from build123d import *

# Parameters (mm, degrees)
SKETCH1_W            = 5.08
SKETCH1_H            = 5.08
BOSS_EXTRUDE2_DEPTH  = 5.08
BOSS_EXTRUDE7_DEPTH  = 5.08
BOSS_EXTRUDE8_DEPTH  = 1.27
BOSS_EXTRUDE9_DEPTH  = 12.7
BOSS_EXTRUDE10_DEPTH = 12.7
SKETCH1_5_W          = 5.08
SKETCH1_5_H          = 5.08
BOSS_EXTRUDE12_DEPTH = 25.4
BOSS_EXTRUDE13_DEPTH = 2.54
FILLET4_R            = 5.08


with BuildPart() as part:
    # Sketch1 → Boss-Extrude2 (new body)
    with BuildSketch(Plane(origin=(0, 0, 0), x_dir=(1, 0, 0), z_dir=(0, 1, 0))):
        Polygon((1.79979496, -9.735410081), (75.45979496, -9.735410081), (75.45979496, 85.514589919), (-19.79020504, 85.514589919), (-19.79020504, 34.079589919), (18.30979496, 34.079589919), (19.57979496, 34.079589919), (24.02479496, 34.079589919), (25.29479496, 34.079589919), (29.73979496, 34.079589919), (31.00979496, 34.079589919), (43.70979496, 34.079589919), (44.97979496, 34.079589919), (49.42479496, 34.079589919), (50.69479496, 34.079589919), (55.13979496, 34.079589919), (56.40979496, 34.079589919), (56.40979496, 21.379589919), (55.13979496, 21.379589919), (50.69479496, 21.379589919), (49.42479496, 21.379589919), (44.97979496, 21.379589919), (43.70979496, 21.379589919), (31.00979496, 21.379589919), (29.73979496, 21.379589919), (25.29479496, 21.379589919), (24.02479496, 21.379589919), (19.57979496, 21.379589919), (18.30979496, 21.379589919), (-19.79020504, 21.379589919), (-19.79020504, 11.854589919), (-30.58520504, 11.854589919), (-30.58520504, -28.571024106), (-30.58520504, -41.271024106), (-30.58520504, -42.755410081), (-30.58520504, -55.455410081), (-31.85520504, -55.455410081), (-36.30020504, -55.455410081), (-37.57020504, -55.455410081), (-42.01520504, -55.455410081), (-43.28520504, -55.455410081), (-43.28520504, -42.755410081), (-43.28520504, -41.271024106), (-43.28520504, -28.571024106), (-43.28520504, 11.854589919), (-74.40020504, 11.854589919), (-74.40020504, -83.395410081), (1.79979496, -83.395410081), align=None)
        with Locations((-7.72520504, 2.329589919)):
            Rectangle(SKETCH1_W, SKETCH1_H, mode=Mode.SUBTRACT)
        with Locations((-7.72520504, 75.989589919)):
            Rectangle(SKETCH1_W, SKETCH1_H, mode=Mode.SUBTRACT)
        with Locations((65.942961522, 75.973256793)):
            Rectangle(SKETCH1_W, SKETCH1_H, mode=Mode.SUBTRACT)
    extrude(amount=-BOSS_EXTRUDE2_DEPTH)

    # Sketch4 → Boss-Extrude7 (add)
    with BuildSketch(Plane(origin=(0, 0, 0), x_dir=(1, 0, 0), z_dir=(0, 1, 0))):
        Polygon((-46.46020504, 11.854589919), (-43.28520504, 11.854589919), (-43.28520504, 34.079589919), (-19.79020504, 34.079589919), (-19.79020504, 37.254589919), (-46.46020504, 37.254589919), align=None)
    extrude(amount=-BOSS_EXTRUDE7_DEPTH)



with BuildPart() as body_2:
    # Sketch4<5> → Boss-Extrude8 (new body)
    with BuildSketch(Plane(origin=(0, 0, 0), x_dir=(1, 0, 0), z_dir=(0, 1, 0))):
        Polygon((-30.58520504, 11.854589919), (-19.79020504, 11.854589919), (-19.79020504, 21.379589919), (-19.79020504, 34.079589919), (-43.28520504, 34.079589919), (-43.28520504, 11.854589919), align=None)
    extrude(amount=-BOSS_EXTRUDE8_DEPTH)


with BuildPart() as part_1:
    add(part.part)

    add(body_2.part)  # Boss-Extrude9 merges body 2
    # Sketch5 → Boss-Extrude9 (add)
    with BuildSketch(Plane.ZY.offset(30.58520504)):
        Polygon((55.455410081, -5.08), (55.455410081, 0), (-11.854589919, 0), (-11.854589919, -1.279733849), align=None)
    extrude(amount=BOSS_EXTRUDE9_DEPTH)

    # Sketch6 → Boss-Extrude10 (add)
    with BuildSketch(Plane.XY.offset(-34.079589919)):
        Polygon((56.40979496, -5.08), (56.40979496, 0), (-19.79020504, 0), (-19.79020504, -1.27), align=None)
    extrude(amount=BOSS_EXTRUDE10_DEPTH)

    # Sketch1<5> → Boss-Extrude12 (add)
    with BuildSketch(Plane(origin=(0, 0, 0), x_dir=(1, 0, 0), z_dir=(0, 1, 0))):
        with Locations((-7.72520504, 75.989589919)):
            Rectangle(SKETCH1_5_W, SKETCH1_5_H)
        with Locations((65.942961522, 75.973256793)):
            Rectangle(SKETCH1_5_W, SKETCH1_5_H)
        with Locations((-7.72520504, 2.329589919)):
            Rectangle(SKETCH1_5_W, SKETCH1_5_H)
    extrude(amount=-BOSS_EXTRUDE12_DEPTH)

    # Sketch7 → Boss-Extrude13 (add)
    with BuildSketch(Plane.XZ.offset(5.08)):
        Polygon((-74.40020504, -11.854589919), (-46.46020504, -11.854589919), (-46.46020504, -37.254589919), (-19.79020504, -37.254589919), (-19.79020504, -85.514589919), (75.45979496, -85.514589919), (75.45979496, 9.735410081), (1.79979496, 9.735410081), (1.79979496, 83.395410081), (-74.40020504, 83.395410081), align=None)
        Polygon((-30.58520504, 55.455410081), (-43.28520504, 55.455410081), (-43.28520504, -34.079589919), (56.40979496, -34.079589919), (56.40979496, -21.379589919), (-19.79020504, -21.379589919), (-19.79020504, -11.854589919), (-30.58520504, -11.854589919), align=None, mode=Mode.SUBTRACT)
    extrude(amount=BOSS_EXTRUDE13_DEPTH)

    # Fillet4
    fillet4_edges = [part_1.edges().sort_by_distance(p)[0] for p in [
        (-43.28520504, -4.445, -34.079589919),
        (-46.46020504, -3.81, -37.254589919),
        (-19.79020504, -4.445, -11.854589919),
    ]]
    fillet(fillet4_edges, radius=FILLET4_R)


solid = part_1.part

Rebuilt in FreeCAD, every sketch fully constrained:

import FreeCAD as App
import Part
import Sketcher

V = App.Vector
Q = App.Units.Quantity


def edges_at(feature, points):
    """Names of the edges that pass closest to the given points."""
    edges = feature.Shape.Edges
    near = lambda p: min(range(len(edges)), key=lambda i: edges[i].distToShape(Part.Vertex(*p))[0])
    return sorted({f"Edge{near(p) + 1}" for p in points})

doc = App.newDocument("Part")
body = doc.addObject("PartDesign::Body", "Body")

sketch1 = body.newObject("Sketcher::SketchObject", "Sketch")
sketch1.AttachmentSupport = (doc.getObject("XZ_Plane"), [""])
sketch1.MapMode = "FlatFace"
sketch1.addGeometry([
    Part.LineSegment(V(1.799795, 9.73541, 0), V(75.459795, 9.73541, 0)),
    Part.LineSegment(V(75.459795, 9.73541, 0), V(75.459795, -85.51459, 0)),
    Part.LineSegment(V(75.459795, -85.51459, 0), V(-19.790205, -85.51459, 0)),
    Part.LineSegment(V(-19.790205, -85.51459, 0), V(-19.790205, -34.07959, 0)),
    Part.LineSegment(V(-19.790205, -34.07959, 0), V(56.409795, -34.07959, 0)),
    Part.LineSegment(V(56.409795, -34.07959, 0), V(56.409795, -21.37959, 0)),
    Part.LineSegment(V(56.409795, -21.37959, 0), V(-19.790205, -21.37959, 0)),
    Part.LineSegment(V(-19.790205, -21.37959, 0), V(-19.790205, -11.85459, 0)),
    Part.LineSegment(V(-19.790205, -11.85459, 0), V(-30.585205, -11.85459, 0)),
    Part.LineSegment(V(-30.585205, -11.85459, 0), V(-30.585205, 55.45541, 0)),
    Part.LineSegment(V(-30.585205, 55.45541, 0), V(-43.285205, 55.45541, 0)),
    Part.LineSegment(V(-43.285205, 55.45541, 0), V(-43.285205, -11.85459, 0)),
    Part.LineSegment(V(-43.285205, -11.85459, 0), V(-74.400205, -11.85459, 0)),
    Part.LineSegment(V(-74.400205, -11.85459, 0), V(-74.400205, 83.39541, 0)),
    Part.LineSegment(V(-74.400205, 83.39541, 0), V(1.799795, 83.39541, 0)),
    Part.LineSegment(V(1.799795, 83.39541, 0), V(1.799795, 9.73541, 0)),
    Part.LineSegment(V(-5.185205, 0.21041, 0), V(-10.265205, 0.21041, 0)),
    Part.LineSegment(V(-10.265205, 0.21041, 0), V(-10.265205, -4.86959, 0)),
    Part.LineSegment(V(-10.265205, -4.86959, 0), V(-5.185205, -4.86959, 0)),
    Part.LineSegment(V(-5.185205, -4.86959, 0), V(-5.185205, 0.21041, 0)),
    Part.LineSegment(V(-5.185205, -73.44959, 0), V(-10.265205, -73.44959, 0)),
    Part.LineSegment(V(-10.265205, -73.44959, 0), V(-10.265205, -78.52959, 0)),
    Part.LineSegment(V(-10.265205, -78.52959, 0), V(-5.185205, -78.52959, 0)),
    Part.LineSegment(V(-5.185205, -78.52959, 0), V(-5.185205, -73.44959, 0)),
    Part.LineSegment(V(68.482962, -73.433257, 0), V(63.402962, -73.433257, 0)),
    Part.LineSegment(V(63.402962, -73.433257, 0), V(63.402962, -78.513257, 0)),
    Part.LineSegment(V(63.402962, -78.513257, 0), V(68.482962, -78.513257, 0)),
    Part.LineSegment(V(68.482962, -78.513257, 0), V(68.482962, -73.433257, 0)),
], False)
sketch1.addConstraint([
    Sketcher.Constraint("Coincident", 0, 2, 1, 1),
    Sketcher.Constraint("Coincident", 1, 2, 2, 1),
    Sketcher.Constraint("Coincident", 2, 2, 3, 1),
    Sketcher.Constraint("Coincident", 3, 2, 4, 1),
    Sketcher.Constraint("Coincident", 4, 2, 5, 1),
    Sketcher.Constraint("Coincident", 5, 2, 6, 1),
    Sketcher.Constraint("Coincident", 6, 2, 7, 1),
    Sketcher.Constraint("Coincident", 7, 2, 8, 1),
    Sketcher.Constraint("Coincident", 8, 2, 9, 1),
    Sketcher.Constraint("Coincident", 9, 2, 10, 1),
    Sketcher.Constraint("Coincident", 10, 2, 11, 1),
    Sketcher.Constraint("Coincident", 11, 2, 12, 1),
    Sketcher.Constraint("Coincident", 12, 2, 13, 1),
    Sketcher.Constraint("Coincident", 13, 2, 14, 1),
    Sketcher.Constraint("Coincident", 14, 2, 15, 1),
    Sketcher.Constraint("Coincident", 15, 2, 0, 1),
    Sketcher.Constraint("Coincident", 16, 2, 17, 1),
    Sketcher.Constraint("Coincident", 17, 2, 18, 1),
    Sketcher.Constraint("Coincident", 18, 2, 19, 1),
    Sketcher.Constraint("Coincident", 19, 2, 16, 1),
    Sketcher.Constraint("Coincident", 20, 2, 21, 1),
    Sketcher.Constraint("Coincident", 21, 2, 22, 1),
    Sketcher.Constraint("Coincident", 22, 2, 23, 1),
    Sketcher.Constraint("Coincident", 23, 2, 20, 1),
    Sketcher.Constraint("Coincident", 24, 2, 25, 1),
    Sketcher.Constraint("Coincident", 25, 2, 26, 1),
    Sketcher.Constraint("Coincident", 26, 2, 27, 1),
    Sketcher.Constraint("Coincident", 27, 2, 24, 1),
    Sketcher.Constraint("Horizontal", 0),
    Sketcher.Constraint("Vertical", 1),
    Sketcher.Constraint("Horizontal", 2),
    Sketcher.Constraint("Vertical", 3),
    Sketcher.Constraint("Horizontal", 4),
    Sketcher.Constraint("Vertical", 5),
    Sketcher.Constraint("Horizontal", 6),
    Sketcher.Constraint("Vertical", 7),
    Sketcher.Constraint("Horizontal", 8),
    Sketcher.Constraint("Vertical", 9),
    Sketcher.Constraint("Horizontal", 10),
    Sketcher.Constraint("Vertical", 11),
    Sketcher.Constraint("Horizontal", 12),
    Sketcher.Constraint("Vertical", 13),
    Sketcher.Constraint("Horizontal", 14),
    Sketcher.Constraint("Vertical", 15),
    Sketcher.Constraint("Horizontal", 16),
    Sketcher.Constraint("Vertical", 17),
    Sketcher.Constraint("Horizontal", 18),
    Sketcher.Constraint("Vertical", 19),
    Sketcher.Constraint("Horizontal", 20),
    Sketcher.Constraint("Vertical", 21),
    Sketcher.Constraint("Horizontal", 22),
    Sketcher.Constraint("Vertical", 23),
    Sketcher.Constraint("Horizontal", 24),
    Sketcher.Constraint("Vertical", 25),
    Sketcher.Constraint("Horizontal", 26),
    Sketcher.Constraint("Vertical", 27),
    Sketcher.Constraint("Horizontal", 8, 2, 11, 2),
    Sketcher.Constraint("Vertical", 3, 2, 6, 2),
    Sketcher.Constraint("Vertical", 17, 2, 20, 2),
    Sketcher.Constraint("Vertical", 19, 2, 22, 2),
    Sketcher.Constraint("Equal", 6, 14),
    Sketcher.Constraint("Equal", 22, 24),
    Sketcher.Constraint("Equal", 2, 1),
    Sketcher.Constraint("Equal", 10, 5),
    Sketcher.Constraint("Equal", 1, 13),
    Sketcher.Constraint("Equal", 0, 15),
    Sketcher.Constraint("Equal", 26, 17),
    Sketcher.Constraint("Equal", 19, 21),
    Sketcher.Constraint("Equal", 23, 25),
    Sketcher.Constraint("DistanceX", 4, 1, 4, 2, Q("3 in")),
    Sketcher.Constraint("DistanceX", 0, 1, 0, 2, Q("2.9 in")),
    Sketcher.Constraint("DistanceX", 10, 2, 10, 1, Q("0.5 in")),
    Sketcher.Constraint("DistanceX", 16, 2, 16, 1, Q("0.2 in")),
    Sketcher.Constraint("DistanceX", 2, 2, 2, 1, Q("3.75 in")),
    Sketcher.Constraint("DistanceY", 9, 1, 9, 2, Q("2.65 in")),
    Sketcher.Constraint("DistanceX", 8, 2, 16, 2, Q("0.8 in")),
    Sketcher.Constraint("DistanceX", 8, 2, 8, 1, Q("0.425 in")),
    Sketcher.Constraint("DistanceY", 3, 1, 3, 2, Q("2.025 in")),
    Sketcher.Constraint("DistanceY", 6, 2, 16, 2, Q("0.85 in")),
    Sketcher.Constraint("DistanceY", 20, 2, 3, 2, Q("1.55 in")),
    Sketcher.Constraint("DistanceY", -1, 1, 0, 2, Q("9.73541 mm")),
    Sketcher.Constraint("DistanceX", -1, 1, 24, 2, Q("63.402962 mm")),
    Sketcher.Constraint("DistanceX", -1, 1, 0, 2, Q("75.459795 mm")),
    Sketcher.Constraint("DistanceY", 24, 2, -1, 1, Q("73.433257 mm")),
])
pad1 = body.newObject("PartDesign::Pad", "Pad")
pad1.Profile = sketch1
pad1.Length = Q("0.2 in")

sketch2 = body.newObject("Sketcher::SketchObject", "Sketch001")
sketch2.AttachmentSupport = (doc.getObject("XZ_Plane"), [""])
sketch2.MapMode = "FlatFace"
sketch2.addGeometry([
    Part.LineSegment(V(-46.460205, -11.85459, 0), V(-43.285205, -11.85459, 0)),
    Part.LineSegment(V(-43.285205, -11.85459, 0), V(-43.285205, -34.07959, 0)),
    Part.LineSegment(V(-43.285205, -34.07959, 0), V(-19.790205, -34.07959, 0)),
    Part.LineSegment(V(-19.790205, -34.07959, 0), V(-19.790205, -37.25459, 0)),
    Part.LineSegment(V(-19.790205, -37.25459, 0), V(-46.460205, -37.25459, 0)),
    Part.LineSegment(V(-46.460205, -37.25459, 0), V(-46.460205, -11.85459, 0)),
], False)
sketch2.addConstraint([
    Sketcher.Constraint("Coincident", 0, 2, 1, 1),
    Sketcher.Constraint("Coincident", 1, 2, 2, 1),
    Sketcher.Constraint("Coincident", 2, 2, 3, 1),
    Sketcher.Constraint("Coincident", 3, 2, 4, 1),
    Sketcher.Constraint("Coincident", 4, 2, 5, 1),
    Sketcher.Constraint("Coincident", 5, 2, 0, 1),
    Sketcher.Constraint("Horizontal", 0),
    Sketcher.Constraint("Vertical", 1),
    Sketcher.Constraint("Horizontal", 2),
    Sketcher.Constraint("Vertical", 3),
    Sketcher.Constraint("Horizontal", 4),
    Sketcher.Constraint("Vertical", 5),
    Sketcher.Constraint("Equal", 0, 3),
    Sketcher.Constraint("DistanceY", 5, 1, 5, 2, Q("1 in")),
    Sketcher.Constraint("DistanceX", 4, 2, 4, 1, Q("1.05 in")),
    Sketcher.Constraint("DistanceX", 0, 1, 0, 2, Q("0.125 in")),
    Sketcher.Constraint("DistanceY", 0, 2, -1, 1, Q("11.85459 mm")),
    Sketcher.Constraint("DistanceX", 0, 2, -1, 1, Q("43.285205 mm")),
])
pad2 = body.newObject("PartDesign::Pad", "Pad001")
pad2.Profile = sketch2
pad2.Length = Q("0.2 in")
body2 = doc.addObject("PartDesign::Body", "Body001")

sketch3 = body2.newObject("Sketcher::SketchObject", "Sketch002")
sketch3.AttachmentSupport = (doc.getObject("XZ_Plane001"), [""])
sketch3.MapMode = "FlatFace"
sketch3.addGeometry([
    Part.LineSegment(V(-19.790205, -11.85459, 0), V(-19.790205, -34.07959, 0)),
    Part.LineSegment(V(-19.790205, -34.07959, 0), V(-43.285205, -34.07959, 0)),
    Part.LineSegment(V(-43.285205, -34.07959, 0), V(-43.285205, -11.85459, 0)),
    Part.LineSegment(V(-43.285205, -11.85459, 0), V(-19.790205, -11.85459, 0)),
], False)
sketch3.addConstraint([
    Sketcher.Constraint("Coincident", 0, 2, 1, 1),
    Sketcher.Constraint("Coincident", 1, 2, 2, 1),
    Sketcher.Constraint("Coincident", 2, 2, 3, 1),
    Sketcher.Constraint("Coincident", 3, 2, 0, 1),
    Sketcher.Constraint("Vertical", 0),
    Sketcher.Constraint("Horizontal", 1),
    Sketcher.Constraint("Vertical", 2),
    Sketcher.Constraint("Horizontal", 3),
    Sketcher.Constraint("DistanceX", 1, 2, 1, 1, Q("0.925 in")),
    Sketcher.Constraint("DistanceY", 0, 2, 0, 1, Q("0.875 in")),
    Sketcher.Constraint("DistanceY", 0, 2, -1, 1, Q("34.07959 mm")),
    Sketcher.Constraint("DistanceX", 0, 2, -1, 1, Q("19.790205 mm")),
])
pad3 = body2.newObject("PartDesign::Pad", "Pad002")
pad3.Profile = sketch3
pad3.Length = Q("0.05 in")
doc.recompute()

boolean = body.newObject("PartDesign::Boolean", "Boolean")
boolean.Type = "Fuse"
boolean.addObjects([body2])

sketch4 = body.newObject("Sketcher::SketchObject", "Sketch003")
sketch4.AttachmentSupport = (doc.getObject("YZ_Plane"), [""])
sketch4.MapMode = "FlatFace"
sketch4.AttachmentOffset = App.Placement(V(0, 0, -30.585205), App.Rotation())
sketch4.addGeometry([
    Part.LineSegment(V(-5.08, 55.45541, 0), V(0, 55.45541, 0)),
    Part.LineSegment(V(0, 55.45541, 0), V(0, -11.85459, 0)),
    Part.LineSegment(V(0, -11.85459, 0), V(-1.279734, -11.85459, 0)),
    Part.LineSegment(V(-1.279734, -11.85459, 0), V(-5.08, 55.45541, 0)),
], False)
sketch4.addConstraint([
    Sketcher.Constraint("Coincident", 0, 2, 1, 1),
    Sketcher.Constraint("Coincident", 1, 2, 2, 1),
    Sketcher.Constraint("Coincident", 2, 2, 3, 1),
    Sketcher.Constraint("Coincident", 3, 2, 0, 1),
    Sketcher.Constraint("Horizontal", 0),
    Sketcher.Constraint("Vertical", 1),
    Sketcher.Constraint("Horizontal", 2),
    Sketcher.Constraint("PointOnObject", 0, 2, -2),
    Sketcher.Constraint("DistanceX", 0, 1, 0, 2, Q("0.2 in")),
    Sketcher.Constraint("DistanceY", 1, 2, 1, 1, Q("2.65 in")),
    Sketcher.Constraint("DistanceX", 2, 2, 2, 1, Q("1.279734 mm")),
    Sketcher.Constraint("DistanceY", -1, 1, 0, 2, Q("55.45541 mm")),
])
pad4 = body.newObject("PartDesign::Pad", "Pad003")
pad4.Profile = sketch4
pad4.Length = Q("0.5 in")
pad4.Reversed = True

sketch5 = body.newObject("Sketcher::SketchObject", "Sketch004")
sketch5.AttachmentSupport = (doc.getObject("XY_Plane"), [""])
sketch5.MapMode = "FlatFace"
sketch5.AttachmentOffset = App.Placement(V(0, 0, -34.07959), App.Rotation())
sketch5.addGeometry([
    Part.LineSegment(V(56.409795, -5.08, 0), V(56.409795, 0, 0)),
    Part.LineSegment(V(56.409795, 0, 0), V(-19.790205, 0, 0)),
    Part.LineSegment(V(-19.790205, 0, 0), V(-19.790205, -1.27, 0)),
    Part.LineSegment(V(-19.790205, -1.27, 0), V(56.409795, -5.08, 0)),
], False)
sketch5.addConstraint([
    Sketcher.Constraint("Coincident", 0, 2, 1, 1),
    Sketcher.Constraint("Coincident", 1, 2, 2, 1),
    Sketcher.Constraint("Coincident", 2, 2, 3, 1),
    Sketcher.Constraint("Coincident", 3, 2, 0, 1),
    Sketcher.Constraint("Vertical", 0),
    Sketcher.Constraint("Horizontal", 1),
    Sketcher.Constraint("Vertical", 2),
    Sketcher.Constraint("PointOnObject", 0, 2, -1),
    Sketcher.Constraint("DistanceX", 1, 2, 1, 1, Q("3 in")),
    Sketcher.Constraint("DistanceY", 0, 1, 0, 2, Q("0.2 in")),
    Sketcher.Constraint("DistanceY", 2, 2, 2, 1, Q("0.05 in")),
    Sketcher.Constraint("DistanceX", -1, 1, 0, 2, Q("56.409795 mm")),
])
pad5 = body.newObject("PartDesign::Pad", "Pad004")
pad5.Profile = sketch5
pad5.Length = Q("0.5 in")

sketch6 = body.newObject("Sketcher::SketchObject", "Sketch005")
sketch6.AttachmentSupport = (doc.getObject("XZ_Plane"), [""])
sketch6.MapMode = "FlatFace"
sketch6.addGeometry([
    Part.LineSegment(V(-10.265205, -78.52959, 0), V(-10.265205, -73.44959, 0)),
    Part.LineSegment(V(-10.265205, -73.44959, 0), V(-5.185205, -73.44959, 0)),
    Part.LineSegment(V(-5.185205, -73.44959, 0), V(-5.185205, -78.52959, 0)),
    Part.LineSegment(V(-5.185205, -78.52959, 0), V(-10.265205, -78.52959, 0)),
    Part.LineSegment(V(63.402962, -78.513257, 0), V(63.402962, -73.433257, 0)),
    Part.LineSegment(V(63.402962, -73.433257, 0), V(68.482962, -73.433257, 0)),
    Part.LineSegment(V(68.482962, -73.433257, 0), V(68.482962, -78.513257, 0)),
    Part.LineSegment(V(68.482962, -78.513257, 0), V(63.402962, -78.513257, 0)),
    Part.LineSegment(V(-10.265205, -4.86959, 0), V(-10.265205, 0.21041, 0)),
    Part.LineSegment(V(-10.265205, 0.21041, 0), V(-5.185205, 0.21041, 0)),
    Part.LineSegment(V(-5.185205, 0.21041, 0), V(-5.185205, -4.86959, 0)),
    Part.LineSegment(V(-5.185205, -4.86959, 0), V(-10.265205, -4.86959, 0)),
], False)
sketch6.addConstraint([
    Sketcher.Constraint("Coincident", 0, 2, 1, 1),
    Sketcher.Constraint("Coincident", 1, 2, 2, 1),
    Sketcher.Constraint("Coincident", 2, 2, 3, 1),
    Sketcher.Constraint("Coincident", 3, 2, 0, 1),
    Sketcher.Constraint("Coincident", 4, 2, 5, 1),
    Sketcher.Constraint("Coincident", 5, 2, 6, 1),
    Sketcher.Constraint("Coincident", 6, 2, 7, 1),
    Sketcher.Constraint("Coincident", 7, 2, 4, 1),
    Sketcher.Constraint("Coincident", 8, 2, 9, 1),
    Sketcher.Constraint("Coincident", 9, 2, 10, 1),
    Sketcher.Constraint("Coincident", 10, 2, 11, 1),
    Sketcher.Constraint("Coincident", 11, 2, 8, 1),
    Sketcher.Constraint("Vertical", 0),
    Sketcher.Constraint("Horizontal", 1),
    Sketcher.Constraint("Vertical", 2),
    Sketcher.Constraint("Horizontal", 3),
    Sketcher.Constraint("Vertical", 4),
    Sketcher.Constraint("Horizontal", 5),
    Sketcher.Constraint("Vertical", 6),
    Sketcher.Constraint("Horizontal", 7),
    Sketcher.Constraint("Vertical", 8),
    Sketcher.Constraint("Horizontal", 9),
    Sketcher.Constraint("Vertical", 10),
    Sketcher.Constraint("Horizontal", 11),
    Sketcher.Constraint("Vertical", 3, 2, 8, 2),
    Sketcher.Constraint("Vertical", 2, 2, 9, 2),
    Sketcher.Constraint("Equal", 3, 5),
    Sketcher.Constraint("Equal", 11, 0),
    Sketcher.Constraint("Equal", 2, 4),
    Sketcher.Constraint("Equal", 6, 8),
    Sketcher.Constraint("DistanceX", 1, 1, 1, 2, Q("0.2 in")),
    Sketcher.Constraint("DistanceY", 0, 2, 8, 2, Q("2.9 in")),
    Sketcher.Constraint("DistanceY", 0, 2, -1, 1, Q("73.44959 mm")),
    Sketcher.Constraint("DistanceX", -1, 1, 4, 2, Q("63.402962 mm")),
    Sketcher.Constraint("DistanceX", 0, 2, -1, 1, Q("10.265205 mm")),
    Sketcher.Constraint("DistanceY", 4, 2, -1, 1, Q("73.433257 mm")),
])
pad6 = body.newObject("PartDesign::Pad", "Pad005")
pad6.Profile = sketch6
pad6.Length = Q("1 in")

sketch7 = body.newObject("Sketcher::SketchObject", "Sketch006")
sketch7.AttachmentSupport = (doc.getObject("XZ_Plane"), [""])
sketch7.MapMode = "FlatFace"
sketch7.AttachmentOffset = App.Placement(V(0, 0, 0.2 * 25.4), App.Rotation())
sketch7.addGeometry([
    Part.LineSegment(V(-74.400205, -11.85459, 0), V(-46.460205, -11.85459, 0)),
    Part.LineSegment(V(-46.460205, -11.85459, 0), V(-46.460205, -37.25459, 0)),
    Part.LineSegment(V(-46.460205, -37.25459, 0), V(-19.790205, -37.25459, 0)),
    Part.LineSegment(V(-19.790205, -37.25459, 0), V(-19.790205, -85.51459, 0)),
    Part.LineSegment(V(-19.790205, -85.51459, 0), V(75.459795, -85.51459, 0)),
    Part.LineSegment(V(75.459795, -85.51459, 0), V(75.459795, 9.73541, 0)),
    Part.LineSegment(V(75.459795, 9.73541, 0), V(1.799795, 9.73541, 0)),
    Part.LineSegment(V(1.799795, 9.73541, 0), V(1.799795, 83.39541, 0)),
    Part.LineSegment(V(1.799795, 83.39541, 0), V(-74.400205, 83.39541, 0)),
    Part.LineSegment(V(-74.400205, 83.39541, 0), V(-74.400205, -11.85459, 0)),
    Part.LineSegment(V(-43.285205, 55.45541, 0), V(-30.585205, 55.45541, 0)),
    Part.LineSegment(V(-30.585205, 55.45541, 0), V(-30.585205, -11.85459, 0)),
    Part.LineSegment(V(-30.585205, -11.85459, 0), V(-19.790205, -11.85459, 0)),
    Part.LineSegment(V(-19.790205, -11.85459, 0), V(-19.790205, -21.37959, 0)),
    Part.LineSegment(V(-19.790205, -21.37959, 0), V(56.409795, -21.37959, 0)),
    Part.LineSegment(V(56.409795, -21.37959, 0), V(56.409795, -34.07959, 0)),
    Part.LineSegment(V(56.409795, -34.07959, 0), V(-43.285205, -34.07959, 0)),
    Part.LineSegment(V(-43.285205, -34.07959, 0), V(-43.285205, 55.45541, 0)),
], False)
sketch7.addConstraint([
    Sketcher.Constraint("Coincident", 0, 2, 1, 1),
    Sketcher.Constraint("Coincident", 1, 2, 2, 1),
    Sketcher.Constraint("Coincident", 2, 2, 3, 1),
    Sketcher.Constraint("Coincident", 3, 2, 4, 1),
    Sketcher.Constraint("Coincident", 4, 2, 5, 1),
    Sketcher.Constraint("Coincident", 5, 2, 6, 1),
    Sketcher.Constraint("Coincident", 6, 2, 7, 1),
    Sketcher.Constraint("Coincident", 7, 2, 8, 1),
    Sketcher.Constraint("Coincident", 8, 2, 9, 1),
    Sketcher.Constraint("Coincident", 9, 2, 0, 1),
    Sketcher.Constraint("Coincident", 10, 2, 11, 1),
    Sketcher.Constraint("Coincident", 11, 2, 12, 1),
    Sketcher.Constraint("Coincident", 12, 2, 13, 1),
    Sketcher.Constraint("Coincident", 13, 2, 14, 1),
    Sketcher.Constraint("Coincident", 14, 2, 15, 1),
    Sketcher.Constraint("Coincident", 15, 2, 16, 1),
    Sketcher.Constraint("Coincident", 16, 2, 17, 1),
    Sketcher.Constraint("Coincident", 17, 2, 10, 1),
    Sketcher.Constraint("Horizontal", 0),
    Sketcher.Constraint("Vertical", 1),
    Sketcher.Constraint("Horizontal", 2),
    Sketcher.Constraint("Vertical", 3),
    Sketcher.Constraint("Horizontal", 4),
    Sketcher.Constraint("Vertical", 5),
    Sketcher.Constraint("Horizontal", 6),
    Sketcher.Constraint("Vertical", 7),
    Sketcher.Constraint("Horizontal", 8),
    Sketcher.Constraint("Vertical", 9),
    Sketcher.Constraint("Horizontal", 10),
    Sketcher.Constraint("Vertical", 11),
    Sketcher.Constraint("Horizontal", 12),
    Sketcher.Constraint("Vertical", 13),
    Sketcher.Constraint("Horizontal", 14),
    Sketcher.Constraint("Vertical", 15),
    Sketcher.Constraint("Horizontal", 16),
    Sketcher.Constraint("Vertical", 17),
    Sketcher.Constraint("Horizontal", 9, 2, 11, 2),
    Sketcher.Constraint("Vertical", 3, 2, 12, 2),
    Sketcher.Constraint("Equal", 8, 14),
    Sketcher.Constraint("Equal", 4, 5),
    Sketcher.Constraint("Equal", 6, 7),
    Sketcher.Constraint("Equal", 5, 9),
    Sketcher.Constraint("Equal", 10, 15),
    Sketcher.Constraint("DistanceX", 8, 2, 8, 1, Q("3 in")),
    Sketcher.Constraint("DistanceY", 1, 2, 1, 1, Q("1 in")),
    Sketcher.Constraint("DistanceX", 0, 1, 0, 2, Q("1.1 in")),
    Sketcher.Constraint("DistanceX", 6, 2, 6, 1, Q("2.9 in")),
    Sketcher.Constraint("DistanceX", 10, 1, 10, 2, Q("0.5 in")),
    Sketcher.Constraint("DistanceX", 2, 1, 2, 2, Q("1.05 in")),
    Sketcher.Constraint("DistanceY", 11, 2, 11, 1, Q("2.65 in")),
    Sketcher.Constraint("DistanceX", 12, 1, 12, 2, Q("0.425 in")),
    Sketcher.Constraint("DistanceY", 13, 2, 13, 1, Q("0.375 in")),
    Sketcher.Constraint("DistanceY", 0, 2, -1, 1, Q("11.85459 mm")),
    Sketcher.Constraint("DistanceX", 0, 2, -1, 1, Q("46.460205 mm")),
])
pad7 = body.newObject("PartDesign::Pad", "Pad006")
pad7.Profile = sketch7
pad7.Length = Q("0.1 in")
doc.recompute()

fillet = body.newObject("PartDesign::Fillet", "Fillet")
fillet.Base = (pad7, edges_at(pad7, [(-43.285, -4.445, -34.08), (-46.46, -3.81, -37.255), (-19.79, -4.445, -11.855)]))
fillet.Radius = Q("0.2 in")

doc.recompute()
